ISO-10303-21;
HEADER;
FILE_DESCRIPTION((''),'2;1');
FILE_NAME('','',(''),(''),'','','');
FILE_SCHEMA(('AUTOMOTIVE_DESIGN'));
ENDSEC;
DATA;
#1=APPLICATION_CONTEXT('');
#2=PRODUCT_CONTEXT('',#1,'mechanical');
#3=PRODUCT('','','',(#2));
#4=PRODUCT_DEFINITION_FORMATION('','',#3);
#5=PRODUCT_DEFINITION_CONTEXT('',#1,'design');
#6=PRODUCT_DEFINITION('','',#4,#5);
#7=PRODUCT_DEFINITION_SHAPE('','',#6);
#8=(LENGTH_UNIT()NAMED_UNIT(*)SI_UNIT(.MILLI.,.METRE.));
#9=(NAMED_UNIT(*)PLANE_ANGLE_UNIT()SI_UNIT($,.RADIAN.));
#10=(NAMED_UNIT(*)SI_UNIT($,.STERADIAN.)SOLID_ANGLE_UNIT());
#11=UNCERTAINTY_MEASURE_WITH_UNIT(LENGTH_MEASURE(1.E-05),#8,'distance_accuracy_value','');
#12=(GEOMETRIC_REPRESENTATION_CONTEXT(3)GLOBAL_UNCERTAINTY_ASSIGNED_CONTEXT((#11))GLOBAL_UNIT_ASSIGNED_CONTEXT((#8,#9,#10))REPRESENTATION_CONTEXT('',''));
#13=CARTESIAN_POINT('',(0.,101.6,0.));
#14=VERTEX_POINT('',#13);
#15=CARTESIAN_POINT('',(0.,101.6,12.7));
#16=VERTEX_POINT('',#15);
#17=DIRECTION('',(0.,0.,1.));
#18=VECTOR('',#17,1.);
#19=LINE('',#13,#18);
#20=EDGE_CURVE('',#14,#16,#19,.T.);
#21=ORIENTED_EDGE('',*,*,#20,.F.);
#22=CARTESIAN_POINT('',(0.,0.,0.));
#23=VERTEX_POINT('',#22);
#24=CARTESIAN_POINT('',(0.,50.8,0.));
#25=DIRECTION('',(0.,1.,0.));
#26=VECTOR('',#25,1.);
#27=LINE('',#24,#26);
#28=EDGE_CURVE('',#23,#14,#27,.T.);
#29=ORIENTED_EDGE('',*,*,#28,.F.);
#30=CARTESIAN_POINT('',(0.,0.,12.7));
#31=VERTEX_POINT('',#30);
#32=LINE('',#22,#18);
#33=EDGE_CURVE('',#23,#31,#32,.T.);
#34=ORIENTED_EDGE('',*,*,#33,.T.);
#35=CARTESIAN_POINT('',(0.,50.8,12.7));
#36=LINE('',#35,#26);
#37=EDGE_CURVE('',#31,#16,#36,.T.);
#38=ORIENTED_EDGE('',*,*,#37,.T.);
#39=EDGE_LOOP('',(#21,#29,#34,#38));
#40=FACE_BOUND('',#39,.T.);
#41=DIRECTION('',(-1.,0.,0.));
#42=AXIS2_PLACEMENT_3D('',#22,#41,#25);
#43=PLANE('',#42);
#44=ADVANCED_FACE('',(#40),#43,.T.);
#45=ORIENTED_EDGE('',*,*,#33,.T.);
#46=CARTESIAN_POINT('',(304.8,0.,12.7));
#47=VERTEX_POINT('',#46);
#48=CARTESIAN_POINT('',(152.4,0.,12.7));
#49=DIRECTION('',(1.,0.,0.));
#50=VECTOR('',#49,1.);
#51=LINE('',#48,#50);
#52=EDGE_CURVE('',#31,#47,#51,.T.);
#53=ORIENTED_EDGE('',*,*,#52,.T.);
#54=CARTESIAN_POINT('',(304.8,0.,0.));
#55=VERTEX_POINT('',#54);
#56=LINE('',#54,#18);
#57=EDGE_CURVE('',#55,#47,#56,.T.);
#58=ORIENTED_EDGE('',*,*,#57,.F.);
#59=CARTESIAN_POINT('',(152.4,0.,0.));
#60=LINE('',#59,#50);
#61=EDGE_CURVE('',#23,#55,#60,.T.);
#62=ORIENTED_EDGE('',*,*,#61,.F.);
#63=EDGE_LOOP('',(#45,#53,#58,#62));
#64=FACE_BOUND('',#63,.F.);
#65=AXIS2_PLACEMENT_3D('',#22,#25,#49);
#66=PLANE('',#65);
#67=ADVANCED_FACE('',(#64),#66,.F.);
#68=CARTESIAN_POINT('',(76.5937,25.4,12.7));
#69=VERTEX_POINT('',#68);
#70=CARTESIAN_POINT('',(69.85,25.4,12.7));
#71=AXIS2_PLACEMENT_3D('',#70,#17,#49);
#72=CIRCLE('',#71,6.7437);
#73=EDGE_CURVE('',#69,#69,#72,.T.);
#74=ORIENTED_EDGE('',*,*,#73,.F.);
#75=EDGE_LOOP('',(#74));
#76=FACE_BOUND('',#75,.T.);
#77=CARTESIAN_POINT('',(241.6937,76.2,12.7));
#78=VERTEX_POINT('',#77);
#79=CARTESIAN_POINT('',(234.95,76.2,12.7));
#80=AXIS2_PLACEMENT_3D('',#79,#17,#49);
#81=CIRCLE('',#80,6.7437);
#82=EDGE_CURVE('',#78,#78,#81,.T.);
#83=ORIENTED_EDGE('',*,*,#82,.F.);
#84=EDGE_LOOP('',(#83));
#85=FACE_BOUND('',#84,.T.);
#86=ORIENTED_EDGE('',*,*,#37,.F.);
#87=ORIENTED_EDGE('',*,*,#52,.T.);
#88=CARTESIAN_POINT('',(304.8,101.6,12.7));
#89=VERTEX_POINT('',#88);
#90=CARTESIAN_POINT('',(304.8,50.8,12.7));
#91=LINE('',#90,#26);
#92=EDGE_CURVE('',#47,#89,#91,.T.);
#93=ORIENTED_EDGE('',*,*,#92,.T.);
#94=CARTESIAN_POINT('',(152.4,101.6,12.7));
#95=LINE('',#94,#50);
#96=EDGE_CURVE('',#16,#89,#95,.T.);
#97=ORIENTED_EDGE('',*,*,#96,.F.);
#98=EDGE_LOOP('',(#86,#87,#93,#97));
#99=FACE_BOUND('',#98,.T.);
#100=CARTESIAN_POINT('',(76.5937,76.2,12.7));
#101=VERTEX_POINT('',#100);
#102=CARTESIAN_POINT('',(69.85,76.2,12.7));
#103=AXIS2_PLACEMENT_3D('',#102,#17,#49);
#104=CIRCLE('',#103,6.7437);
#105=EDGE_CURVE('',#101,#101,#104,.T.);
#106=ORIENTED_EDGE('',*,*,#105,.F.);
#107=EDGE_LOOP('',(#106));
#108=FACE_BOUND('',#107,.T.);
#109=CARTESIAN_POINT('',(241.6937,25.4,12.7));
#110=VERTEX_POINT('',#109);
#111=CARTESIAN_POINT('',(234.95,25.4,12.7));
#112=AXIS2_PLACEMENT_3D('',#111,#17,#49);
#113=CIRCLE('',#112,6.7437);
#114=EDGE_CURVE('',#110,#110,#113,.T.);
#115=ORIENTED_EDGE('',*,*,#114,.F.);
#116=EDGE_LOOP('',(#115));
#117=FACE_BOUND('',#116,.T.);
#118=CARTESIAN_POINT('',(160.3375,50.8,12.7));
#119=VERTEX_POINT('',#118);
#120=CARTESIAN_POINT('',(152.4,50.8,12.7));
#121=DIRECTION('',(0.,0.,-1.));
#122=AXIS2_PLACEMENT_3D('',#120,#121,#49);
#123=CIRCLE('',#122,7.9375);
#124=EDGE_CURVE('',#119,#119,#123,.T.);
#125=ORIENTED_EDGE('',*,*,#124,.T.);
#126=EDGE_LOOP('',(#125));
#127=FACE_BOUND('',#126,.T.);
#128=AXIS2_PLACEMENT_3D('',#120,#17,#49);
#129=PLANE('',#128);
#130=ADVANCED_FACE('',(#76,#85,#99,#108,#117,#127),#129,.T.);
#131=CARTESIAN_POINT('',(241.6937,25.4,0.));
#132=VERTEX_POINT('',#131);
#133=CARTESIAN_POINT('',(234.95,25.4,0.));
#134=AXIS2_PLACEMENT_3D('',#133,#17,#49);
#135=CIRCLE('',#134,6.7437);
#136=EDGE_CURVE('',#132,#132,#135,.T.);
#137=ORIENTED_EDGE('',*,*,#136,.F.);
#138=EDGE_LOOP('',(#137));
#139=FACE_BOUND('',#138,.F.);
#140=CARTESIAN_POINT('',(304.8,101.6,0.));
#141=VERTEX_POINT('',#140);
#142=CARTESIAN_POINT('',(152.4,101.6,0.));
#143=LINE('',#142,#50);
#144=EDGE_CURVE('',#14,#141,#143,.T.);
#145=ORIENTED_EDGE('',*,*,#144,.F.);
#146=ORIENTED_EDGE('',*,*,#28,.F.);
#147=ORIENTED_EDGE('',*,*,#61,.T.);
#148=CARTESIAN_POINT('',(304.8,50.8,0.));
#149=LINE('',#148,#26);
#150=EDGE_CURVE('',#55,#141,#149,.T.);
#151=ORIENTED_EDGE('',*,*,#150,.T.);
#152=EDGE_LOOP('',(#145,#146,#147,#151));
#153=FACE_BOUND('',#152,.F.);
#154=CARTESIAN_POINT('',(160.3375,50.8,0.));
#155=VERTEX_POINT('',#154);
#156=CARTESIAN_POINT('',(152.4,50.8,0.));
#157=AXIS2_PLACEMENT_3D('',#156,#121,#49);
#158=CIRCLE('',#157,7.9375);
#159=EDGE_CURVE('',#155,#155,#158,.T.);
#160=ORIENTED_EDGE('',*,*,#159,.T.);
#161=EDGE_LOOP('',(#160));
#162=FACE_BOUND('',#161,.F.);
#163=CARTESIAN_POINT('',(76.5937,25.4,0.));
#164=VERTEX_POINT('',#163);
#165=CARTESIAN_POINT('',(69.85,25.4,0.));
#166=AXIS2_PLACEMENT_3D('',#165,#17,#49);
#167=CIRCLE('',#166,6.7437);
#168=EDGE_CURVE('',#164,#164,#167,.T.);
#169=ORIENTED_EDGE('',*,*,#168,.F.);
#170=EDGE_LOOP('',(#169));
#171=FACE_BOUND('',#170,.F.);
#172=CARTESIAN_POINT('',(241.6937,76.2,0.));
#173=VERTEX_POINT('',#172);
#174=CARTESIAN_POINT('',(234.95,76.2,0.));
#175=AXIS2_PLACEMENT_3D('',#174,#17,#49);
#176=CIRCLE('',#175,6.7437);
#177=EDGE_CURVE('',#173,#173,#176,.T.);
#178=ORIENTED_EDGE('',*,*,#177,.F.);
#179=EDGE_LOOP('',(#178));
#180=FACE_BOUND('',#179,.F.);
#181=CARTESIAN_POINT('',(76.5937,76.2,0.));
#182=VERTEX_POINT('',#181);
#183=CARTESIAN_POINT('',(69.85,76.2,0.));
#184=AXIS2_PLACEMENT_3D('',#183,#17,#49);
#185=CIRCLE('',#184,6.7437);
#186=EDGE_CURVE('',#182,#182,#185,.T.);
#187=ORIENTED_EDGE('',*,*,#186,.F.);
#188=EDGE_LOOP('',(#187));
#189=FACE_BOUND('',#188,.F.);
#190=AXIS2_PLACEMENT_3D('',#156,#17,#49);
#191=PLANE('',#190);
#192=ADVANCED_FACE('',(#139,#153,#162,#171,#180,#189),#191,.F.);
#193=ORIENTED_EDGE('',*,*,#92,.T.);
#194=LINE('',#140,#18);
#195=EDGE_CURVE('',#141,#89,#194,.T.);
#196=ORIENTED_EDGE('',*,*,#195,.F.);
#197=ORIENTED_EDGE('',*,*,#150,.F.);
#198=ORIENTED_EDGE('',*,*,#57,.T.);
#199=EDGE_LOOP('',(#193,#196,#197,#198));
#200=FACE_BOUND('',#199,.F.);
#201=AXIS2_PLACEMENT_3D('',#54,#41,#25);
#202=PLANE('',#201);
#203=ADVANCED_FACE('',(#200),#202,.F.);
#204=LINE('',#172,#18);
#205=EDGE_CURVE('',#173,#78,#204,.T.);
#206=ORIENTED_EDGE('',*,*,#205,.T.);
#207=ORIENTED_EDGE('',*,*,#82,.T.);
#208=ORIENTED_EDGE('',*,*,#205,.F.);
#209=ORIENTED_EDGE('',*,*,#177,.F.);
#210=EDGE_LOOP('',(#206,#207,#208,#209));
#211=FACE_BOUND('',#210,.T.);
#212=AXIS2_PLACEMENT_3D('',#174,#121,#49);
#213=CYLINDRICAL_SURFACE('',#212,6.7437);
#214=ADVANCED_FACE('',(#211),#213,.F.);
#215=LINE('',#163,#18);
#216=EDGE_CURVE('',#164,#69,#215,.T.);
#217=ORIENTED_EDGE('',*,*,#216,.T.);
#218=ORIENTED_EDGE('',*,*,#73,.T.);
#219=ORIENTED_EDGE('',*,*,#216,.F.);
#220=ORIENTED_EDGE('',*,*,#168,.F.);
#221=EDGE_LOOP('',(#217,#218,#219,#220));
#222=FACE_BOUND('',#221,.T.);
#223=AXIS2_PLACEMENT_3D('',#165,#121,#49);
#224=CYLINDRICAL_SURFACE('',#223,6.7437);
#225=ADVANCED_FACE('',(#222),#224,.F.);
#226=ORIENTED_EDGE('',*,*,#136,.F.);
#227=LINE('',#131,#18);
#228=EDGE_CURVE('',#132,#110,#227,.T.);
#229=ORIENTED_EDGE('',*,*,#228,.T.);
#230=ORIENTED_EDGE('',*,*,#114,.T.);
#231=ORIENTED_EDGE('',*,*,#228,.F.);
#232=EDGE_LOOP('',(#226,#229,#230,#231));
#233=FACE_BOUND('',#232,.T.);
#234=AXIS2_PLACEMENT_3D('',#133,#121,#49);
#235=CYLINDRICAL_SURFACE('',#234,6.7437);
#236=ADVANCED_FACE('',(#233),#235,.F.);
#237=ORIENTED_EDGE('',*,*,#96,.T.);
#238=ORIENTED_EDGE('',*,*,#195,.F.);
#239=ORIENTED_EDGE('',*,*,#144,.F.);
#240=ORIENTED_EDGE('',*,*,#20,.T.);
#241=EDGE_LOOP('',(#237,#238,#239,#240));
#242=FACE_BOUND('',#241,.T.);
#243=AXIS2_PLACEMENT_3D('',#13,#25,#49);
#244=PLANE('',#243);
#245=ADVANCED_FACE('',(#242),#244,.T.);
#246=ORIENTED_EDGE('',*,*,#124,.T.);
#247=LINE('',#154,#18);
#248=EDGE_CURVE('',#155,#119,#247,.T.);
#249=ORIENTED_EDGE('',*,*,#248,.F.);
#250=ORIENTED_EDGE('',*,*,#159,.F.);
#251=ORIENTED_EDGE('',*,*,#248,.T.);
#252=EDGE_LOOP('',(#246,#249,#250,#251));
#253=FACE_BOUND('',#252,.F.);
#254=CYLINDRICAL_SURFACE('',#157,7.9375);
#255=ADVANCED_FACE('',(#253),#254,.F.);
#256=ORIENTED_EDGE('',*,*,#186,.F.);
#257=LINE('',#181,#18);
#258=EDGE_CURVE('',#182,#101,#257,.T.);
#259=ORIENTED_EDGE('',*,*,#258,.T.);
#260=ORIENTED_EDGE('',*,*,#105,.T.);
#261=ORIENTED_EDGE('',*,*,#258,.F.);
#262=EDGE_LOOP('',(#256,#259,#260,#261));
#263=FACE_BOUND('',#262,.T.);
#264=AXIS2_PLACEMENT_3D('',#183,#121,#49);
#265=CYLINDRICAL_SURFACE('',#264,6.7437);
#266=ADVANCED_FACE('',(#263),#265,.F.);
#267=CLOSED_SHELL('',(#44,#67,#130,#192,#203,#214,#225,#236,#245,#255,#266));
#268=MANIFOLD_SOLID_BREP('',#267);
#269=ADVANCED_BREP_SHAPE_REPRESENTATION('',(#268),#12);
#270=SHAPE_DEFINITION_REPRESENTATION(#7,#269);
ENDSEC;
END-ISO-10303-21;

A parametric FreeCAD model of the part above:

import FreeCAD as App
import Part
import Sketcher

V = App.Vector
Q = App.Units.Quantity

doc = App.newDocument("Part")
body = doc.addObject("PartDesign::Body", "Body")

sketch1 = body.newObject("Sketcher::SketchObject", "Sketch")
sketch1.AttachmentSupport = (doc.getObject("XY_Plane"), [""])
sketch1.MapMode = "FlatFace"
sketch1.addGeometry([
    Part.LineSegment(V(0, 101.6, 0), V(0, 0, 0)),
    Part.LineSegment(V(0, 0, 0), V(304.8, 0, 0)),
    Part.LineSegment(V(304.8, 0, 0), V(304.8, 101.6, 0)),
    Part.LineSegment(V(304.8, 101.6, 0), V(0, 101.6, 0)),
    Part.Circle(V(69.85, 25.4, 0), V(0, 0, 1), 6.7437),
    Part.Circle(V(234.95, 25.4, 0), V(0, 0, 1), 6.7437),
    Part.Circle(V(69.85, 76.2, 0), V(0, 0, 1), 6.7437),
    Part.Circle(V(234.95, 76.2, 0), V(0, 0, 1), 6.7437),
], False)
sketch1.addConstraint([
    Sketcher.Constraint("Coincident", 0, 2, 1, 1),
    Sketcher.Constraint("Coincident", 1, 2, 2, 1),
    Sketcher.Constraint("Coincident", 2, 2, 3, 1),
    Sketcher.Constraint("Coincident", 3, 2, 0, 1),
    Sketcher.Constraint("Vertical", 0),
    Sketcher.Constraint("Horizontal", 1),
    Sketcher.Constraint("Vertical", 2),
    Sketcher.Constraint("Horizontal", 3),
    Sketcher.Constraint("Coincident", 0, 2, -1, 1),
    Sketcher.Constraint("Equal", 4, 5),
    Sketcher.Constraint("Equal", 5, 6),
    Sketcher.Constraint("Equal", 6, 7),
    Sketcher.Constraint("Horizontal", 4, 3, 5, 3),
    Sketcher.Constraint("Horizontal", 6, 3, 7, 3),
    Sketcher.Constraint("Vertical", 4, 3, 6, 3),
    Sketcher.Constraint("Vertical", 5, 3, 7, 3),
    Sketcher.Constraint("DistanceX", 1, 1, 1, 2, Q("12 in")),
    Sketcher.Constraint("DistanceY", 0, 2, 0, 1, Q("4 in")),
    Sketcher.Constraint("Diameter", 4, Q("0.531 in")),
    Sketcher.Constraint("DistanceY", -1, 1, 4, 3, Q("1 in")),
    Sketcher.Constraint("DistanceY", -1, 1, 6, 3, Q("3 in")),
    Sketcher.Constraint("DistanceX", 4, 3, 5, 3, Q("6.5 in")),
    Sketcher.Constraint("DistanceX", -1, 1, 4, 3, Q("2.75 in")),
])
pad1 = body.newObject("PartDesign::Pad", "Pad")
pad1.Profile = sketch1
pad1.Length = Q("0.5 in")

sketch2 = body.newObject("Sketcher::SketchObject", "Sketch001")
sketch2.AttachmentSupport = (doc.getObject("XY_Plane"), [""])
sketch2.MapMode = "FlatFace"
sketch2.addGeometry(Part.Circle(V(152.4, 50.8, 0), V(0, 0, 1), 7.9375), False)
sketch2.addConstraint([
    Sketcher.Constraint("Diameter", 0, Q("0.625 in")),
    Sketcher.Constraint("DistanceX", -1, 1, 0, 3, Q("6 in")),
    Sketcher.Constraint("DistanceY", -1, 1, 0, 3, Q("2 in")),
])
pocket1 = body.newObject("PartDesign::Pocket", "Pocket")
pocket1.Profile = sketch2
pocket1.Length = Q("1 in")
pocket1.Reversed = True

doc.recompute()
